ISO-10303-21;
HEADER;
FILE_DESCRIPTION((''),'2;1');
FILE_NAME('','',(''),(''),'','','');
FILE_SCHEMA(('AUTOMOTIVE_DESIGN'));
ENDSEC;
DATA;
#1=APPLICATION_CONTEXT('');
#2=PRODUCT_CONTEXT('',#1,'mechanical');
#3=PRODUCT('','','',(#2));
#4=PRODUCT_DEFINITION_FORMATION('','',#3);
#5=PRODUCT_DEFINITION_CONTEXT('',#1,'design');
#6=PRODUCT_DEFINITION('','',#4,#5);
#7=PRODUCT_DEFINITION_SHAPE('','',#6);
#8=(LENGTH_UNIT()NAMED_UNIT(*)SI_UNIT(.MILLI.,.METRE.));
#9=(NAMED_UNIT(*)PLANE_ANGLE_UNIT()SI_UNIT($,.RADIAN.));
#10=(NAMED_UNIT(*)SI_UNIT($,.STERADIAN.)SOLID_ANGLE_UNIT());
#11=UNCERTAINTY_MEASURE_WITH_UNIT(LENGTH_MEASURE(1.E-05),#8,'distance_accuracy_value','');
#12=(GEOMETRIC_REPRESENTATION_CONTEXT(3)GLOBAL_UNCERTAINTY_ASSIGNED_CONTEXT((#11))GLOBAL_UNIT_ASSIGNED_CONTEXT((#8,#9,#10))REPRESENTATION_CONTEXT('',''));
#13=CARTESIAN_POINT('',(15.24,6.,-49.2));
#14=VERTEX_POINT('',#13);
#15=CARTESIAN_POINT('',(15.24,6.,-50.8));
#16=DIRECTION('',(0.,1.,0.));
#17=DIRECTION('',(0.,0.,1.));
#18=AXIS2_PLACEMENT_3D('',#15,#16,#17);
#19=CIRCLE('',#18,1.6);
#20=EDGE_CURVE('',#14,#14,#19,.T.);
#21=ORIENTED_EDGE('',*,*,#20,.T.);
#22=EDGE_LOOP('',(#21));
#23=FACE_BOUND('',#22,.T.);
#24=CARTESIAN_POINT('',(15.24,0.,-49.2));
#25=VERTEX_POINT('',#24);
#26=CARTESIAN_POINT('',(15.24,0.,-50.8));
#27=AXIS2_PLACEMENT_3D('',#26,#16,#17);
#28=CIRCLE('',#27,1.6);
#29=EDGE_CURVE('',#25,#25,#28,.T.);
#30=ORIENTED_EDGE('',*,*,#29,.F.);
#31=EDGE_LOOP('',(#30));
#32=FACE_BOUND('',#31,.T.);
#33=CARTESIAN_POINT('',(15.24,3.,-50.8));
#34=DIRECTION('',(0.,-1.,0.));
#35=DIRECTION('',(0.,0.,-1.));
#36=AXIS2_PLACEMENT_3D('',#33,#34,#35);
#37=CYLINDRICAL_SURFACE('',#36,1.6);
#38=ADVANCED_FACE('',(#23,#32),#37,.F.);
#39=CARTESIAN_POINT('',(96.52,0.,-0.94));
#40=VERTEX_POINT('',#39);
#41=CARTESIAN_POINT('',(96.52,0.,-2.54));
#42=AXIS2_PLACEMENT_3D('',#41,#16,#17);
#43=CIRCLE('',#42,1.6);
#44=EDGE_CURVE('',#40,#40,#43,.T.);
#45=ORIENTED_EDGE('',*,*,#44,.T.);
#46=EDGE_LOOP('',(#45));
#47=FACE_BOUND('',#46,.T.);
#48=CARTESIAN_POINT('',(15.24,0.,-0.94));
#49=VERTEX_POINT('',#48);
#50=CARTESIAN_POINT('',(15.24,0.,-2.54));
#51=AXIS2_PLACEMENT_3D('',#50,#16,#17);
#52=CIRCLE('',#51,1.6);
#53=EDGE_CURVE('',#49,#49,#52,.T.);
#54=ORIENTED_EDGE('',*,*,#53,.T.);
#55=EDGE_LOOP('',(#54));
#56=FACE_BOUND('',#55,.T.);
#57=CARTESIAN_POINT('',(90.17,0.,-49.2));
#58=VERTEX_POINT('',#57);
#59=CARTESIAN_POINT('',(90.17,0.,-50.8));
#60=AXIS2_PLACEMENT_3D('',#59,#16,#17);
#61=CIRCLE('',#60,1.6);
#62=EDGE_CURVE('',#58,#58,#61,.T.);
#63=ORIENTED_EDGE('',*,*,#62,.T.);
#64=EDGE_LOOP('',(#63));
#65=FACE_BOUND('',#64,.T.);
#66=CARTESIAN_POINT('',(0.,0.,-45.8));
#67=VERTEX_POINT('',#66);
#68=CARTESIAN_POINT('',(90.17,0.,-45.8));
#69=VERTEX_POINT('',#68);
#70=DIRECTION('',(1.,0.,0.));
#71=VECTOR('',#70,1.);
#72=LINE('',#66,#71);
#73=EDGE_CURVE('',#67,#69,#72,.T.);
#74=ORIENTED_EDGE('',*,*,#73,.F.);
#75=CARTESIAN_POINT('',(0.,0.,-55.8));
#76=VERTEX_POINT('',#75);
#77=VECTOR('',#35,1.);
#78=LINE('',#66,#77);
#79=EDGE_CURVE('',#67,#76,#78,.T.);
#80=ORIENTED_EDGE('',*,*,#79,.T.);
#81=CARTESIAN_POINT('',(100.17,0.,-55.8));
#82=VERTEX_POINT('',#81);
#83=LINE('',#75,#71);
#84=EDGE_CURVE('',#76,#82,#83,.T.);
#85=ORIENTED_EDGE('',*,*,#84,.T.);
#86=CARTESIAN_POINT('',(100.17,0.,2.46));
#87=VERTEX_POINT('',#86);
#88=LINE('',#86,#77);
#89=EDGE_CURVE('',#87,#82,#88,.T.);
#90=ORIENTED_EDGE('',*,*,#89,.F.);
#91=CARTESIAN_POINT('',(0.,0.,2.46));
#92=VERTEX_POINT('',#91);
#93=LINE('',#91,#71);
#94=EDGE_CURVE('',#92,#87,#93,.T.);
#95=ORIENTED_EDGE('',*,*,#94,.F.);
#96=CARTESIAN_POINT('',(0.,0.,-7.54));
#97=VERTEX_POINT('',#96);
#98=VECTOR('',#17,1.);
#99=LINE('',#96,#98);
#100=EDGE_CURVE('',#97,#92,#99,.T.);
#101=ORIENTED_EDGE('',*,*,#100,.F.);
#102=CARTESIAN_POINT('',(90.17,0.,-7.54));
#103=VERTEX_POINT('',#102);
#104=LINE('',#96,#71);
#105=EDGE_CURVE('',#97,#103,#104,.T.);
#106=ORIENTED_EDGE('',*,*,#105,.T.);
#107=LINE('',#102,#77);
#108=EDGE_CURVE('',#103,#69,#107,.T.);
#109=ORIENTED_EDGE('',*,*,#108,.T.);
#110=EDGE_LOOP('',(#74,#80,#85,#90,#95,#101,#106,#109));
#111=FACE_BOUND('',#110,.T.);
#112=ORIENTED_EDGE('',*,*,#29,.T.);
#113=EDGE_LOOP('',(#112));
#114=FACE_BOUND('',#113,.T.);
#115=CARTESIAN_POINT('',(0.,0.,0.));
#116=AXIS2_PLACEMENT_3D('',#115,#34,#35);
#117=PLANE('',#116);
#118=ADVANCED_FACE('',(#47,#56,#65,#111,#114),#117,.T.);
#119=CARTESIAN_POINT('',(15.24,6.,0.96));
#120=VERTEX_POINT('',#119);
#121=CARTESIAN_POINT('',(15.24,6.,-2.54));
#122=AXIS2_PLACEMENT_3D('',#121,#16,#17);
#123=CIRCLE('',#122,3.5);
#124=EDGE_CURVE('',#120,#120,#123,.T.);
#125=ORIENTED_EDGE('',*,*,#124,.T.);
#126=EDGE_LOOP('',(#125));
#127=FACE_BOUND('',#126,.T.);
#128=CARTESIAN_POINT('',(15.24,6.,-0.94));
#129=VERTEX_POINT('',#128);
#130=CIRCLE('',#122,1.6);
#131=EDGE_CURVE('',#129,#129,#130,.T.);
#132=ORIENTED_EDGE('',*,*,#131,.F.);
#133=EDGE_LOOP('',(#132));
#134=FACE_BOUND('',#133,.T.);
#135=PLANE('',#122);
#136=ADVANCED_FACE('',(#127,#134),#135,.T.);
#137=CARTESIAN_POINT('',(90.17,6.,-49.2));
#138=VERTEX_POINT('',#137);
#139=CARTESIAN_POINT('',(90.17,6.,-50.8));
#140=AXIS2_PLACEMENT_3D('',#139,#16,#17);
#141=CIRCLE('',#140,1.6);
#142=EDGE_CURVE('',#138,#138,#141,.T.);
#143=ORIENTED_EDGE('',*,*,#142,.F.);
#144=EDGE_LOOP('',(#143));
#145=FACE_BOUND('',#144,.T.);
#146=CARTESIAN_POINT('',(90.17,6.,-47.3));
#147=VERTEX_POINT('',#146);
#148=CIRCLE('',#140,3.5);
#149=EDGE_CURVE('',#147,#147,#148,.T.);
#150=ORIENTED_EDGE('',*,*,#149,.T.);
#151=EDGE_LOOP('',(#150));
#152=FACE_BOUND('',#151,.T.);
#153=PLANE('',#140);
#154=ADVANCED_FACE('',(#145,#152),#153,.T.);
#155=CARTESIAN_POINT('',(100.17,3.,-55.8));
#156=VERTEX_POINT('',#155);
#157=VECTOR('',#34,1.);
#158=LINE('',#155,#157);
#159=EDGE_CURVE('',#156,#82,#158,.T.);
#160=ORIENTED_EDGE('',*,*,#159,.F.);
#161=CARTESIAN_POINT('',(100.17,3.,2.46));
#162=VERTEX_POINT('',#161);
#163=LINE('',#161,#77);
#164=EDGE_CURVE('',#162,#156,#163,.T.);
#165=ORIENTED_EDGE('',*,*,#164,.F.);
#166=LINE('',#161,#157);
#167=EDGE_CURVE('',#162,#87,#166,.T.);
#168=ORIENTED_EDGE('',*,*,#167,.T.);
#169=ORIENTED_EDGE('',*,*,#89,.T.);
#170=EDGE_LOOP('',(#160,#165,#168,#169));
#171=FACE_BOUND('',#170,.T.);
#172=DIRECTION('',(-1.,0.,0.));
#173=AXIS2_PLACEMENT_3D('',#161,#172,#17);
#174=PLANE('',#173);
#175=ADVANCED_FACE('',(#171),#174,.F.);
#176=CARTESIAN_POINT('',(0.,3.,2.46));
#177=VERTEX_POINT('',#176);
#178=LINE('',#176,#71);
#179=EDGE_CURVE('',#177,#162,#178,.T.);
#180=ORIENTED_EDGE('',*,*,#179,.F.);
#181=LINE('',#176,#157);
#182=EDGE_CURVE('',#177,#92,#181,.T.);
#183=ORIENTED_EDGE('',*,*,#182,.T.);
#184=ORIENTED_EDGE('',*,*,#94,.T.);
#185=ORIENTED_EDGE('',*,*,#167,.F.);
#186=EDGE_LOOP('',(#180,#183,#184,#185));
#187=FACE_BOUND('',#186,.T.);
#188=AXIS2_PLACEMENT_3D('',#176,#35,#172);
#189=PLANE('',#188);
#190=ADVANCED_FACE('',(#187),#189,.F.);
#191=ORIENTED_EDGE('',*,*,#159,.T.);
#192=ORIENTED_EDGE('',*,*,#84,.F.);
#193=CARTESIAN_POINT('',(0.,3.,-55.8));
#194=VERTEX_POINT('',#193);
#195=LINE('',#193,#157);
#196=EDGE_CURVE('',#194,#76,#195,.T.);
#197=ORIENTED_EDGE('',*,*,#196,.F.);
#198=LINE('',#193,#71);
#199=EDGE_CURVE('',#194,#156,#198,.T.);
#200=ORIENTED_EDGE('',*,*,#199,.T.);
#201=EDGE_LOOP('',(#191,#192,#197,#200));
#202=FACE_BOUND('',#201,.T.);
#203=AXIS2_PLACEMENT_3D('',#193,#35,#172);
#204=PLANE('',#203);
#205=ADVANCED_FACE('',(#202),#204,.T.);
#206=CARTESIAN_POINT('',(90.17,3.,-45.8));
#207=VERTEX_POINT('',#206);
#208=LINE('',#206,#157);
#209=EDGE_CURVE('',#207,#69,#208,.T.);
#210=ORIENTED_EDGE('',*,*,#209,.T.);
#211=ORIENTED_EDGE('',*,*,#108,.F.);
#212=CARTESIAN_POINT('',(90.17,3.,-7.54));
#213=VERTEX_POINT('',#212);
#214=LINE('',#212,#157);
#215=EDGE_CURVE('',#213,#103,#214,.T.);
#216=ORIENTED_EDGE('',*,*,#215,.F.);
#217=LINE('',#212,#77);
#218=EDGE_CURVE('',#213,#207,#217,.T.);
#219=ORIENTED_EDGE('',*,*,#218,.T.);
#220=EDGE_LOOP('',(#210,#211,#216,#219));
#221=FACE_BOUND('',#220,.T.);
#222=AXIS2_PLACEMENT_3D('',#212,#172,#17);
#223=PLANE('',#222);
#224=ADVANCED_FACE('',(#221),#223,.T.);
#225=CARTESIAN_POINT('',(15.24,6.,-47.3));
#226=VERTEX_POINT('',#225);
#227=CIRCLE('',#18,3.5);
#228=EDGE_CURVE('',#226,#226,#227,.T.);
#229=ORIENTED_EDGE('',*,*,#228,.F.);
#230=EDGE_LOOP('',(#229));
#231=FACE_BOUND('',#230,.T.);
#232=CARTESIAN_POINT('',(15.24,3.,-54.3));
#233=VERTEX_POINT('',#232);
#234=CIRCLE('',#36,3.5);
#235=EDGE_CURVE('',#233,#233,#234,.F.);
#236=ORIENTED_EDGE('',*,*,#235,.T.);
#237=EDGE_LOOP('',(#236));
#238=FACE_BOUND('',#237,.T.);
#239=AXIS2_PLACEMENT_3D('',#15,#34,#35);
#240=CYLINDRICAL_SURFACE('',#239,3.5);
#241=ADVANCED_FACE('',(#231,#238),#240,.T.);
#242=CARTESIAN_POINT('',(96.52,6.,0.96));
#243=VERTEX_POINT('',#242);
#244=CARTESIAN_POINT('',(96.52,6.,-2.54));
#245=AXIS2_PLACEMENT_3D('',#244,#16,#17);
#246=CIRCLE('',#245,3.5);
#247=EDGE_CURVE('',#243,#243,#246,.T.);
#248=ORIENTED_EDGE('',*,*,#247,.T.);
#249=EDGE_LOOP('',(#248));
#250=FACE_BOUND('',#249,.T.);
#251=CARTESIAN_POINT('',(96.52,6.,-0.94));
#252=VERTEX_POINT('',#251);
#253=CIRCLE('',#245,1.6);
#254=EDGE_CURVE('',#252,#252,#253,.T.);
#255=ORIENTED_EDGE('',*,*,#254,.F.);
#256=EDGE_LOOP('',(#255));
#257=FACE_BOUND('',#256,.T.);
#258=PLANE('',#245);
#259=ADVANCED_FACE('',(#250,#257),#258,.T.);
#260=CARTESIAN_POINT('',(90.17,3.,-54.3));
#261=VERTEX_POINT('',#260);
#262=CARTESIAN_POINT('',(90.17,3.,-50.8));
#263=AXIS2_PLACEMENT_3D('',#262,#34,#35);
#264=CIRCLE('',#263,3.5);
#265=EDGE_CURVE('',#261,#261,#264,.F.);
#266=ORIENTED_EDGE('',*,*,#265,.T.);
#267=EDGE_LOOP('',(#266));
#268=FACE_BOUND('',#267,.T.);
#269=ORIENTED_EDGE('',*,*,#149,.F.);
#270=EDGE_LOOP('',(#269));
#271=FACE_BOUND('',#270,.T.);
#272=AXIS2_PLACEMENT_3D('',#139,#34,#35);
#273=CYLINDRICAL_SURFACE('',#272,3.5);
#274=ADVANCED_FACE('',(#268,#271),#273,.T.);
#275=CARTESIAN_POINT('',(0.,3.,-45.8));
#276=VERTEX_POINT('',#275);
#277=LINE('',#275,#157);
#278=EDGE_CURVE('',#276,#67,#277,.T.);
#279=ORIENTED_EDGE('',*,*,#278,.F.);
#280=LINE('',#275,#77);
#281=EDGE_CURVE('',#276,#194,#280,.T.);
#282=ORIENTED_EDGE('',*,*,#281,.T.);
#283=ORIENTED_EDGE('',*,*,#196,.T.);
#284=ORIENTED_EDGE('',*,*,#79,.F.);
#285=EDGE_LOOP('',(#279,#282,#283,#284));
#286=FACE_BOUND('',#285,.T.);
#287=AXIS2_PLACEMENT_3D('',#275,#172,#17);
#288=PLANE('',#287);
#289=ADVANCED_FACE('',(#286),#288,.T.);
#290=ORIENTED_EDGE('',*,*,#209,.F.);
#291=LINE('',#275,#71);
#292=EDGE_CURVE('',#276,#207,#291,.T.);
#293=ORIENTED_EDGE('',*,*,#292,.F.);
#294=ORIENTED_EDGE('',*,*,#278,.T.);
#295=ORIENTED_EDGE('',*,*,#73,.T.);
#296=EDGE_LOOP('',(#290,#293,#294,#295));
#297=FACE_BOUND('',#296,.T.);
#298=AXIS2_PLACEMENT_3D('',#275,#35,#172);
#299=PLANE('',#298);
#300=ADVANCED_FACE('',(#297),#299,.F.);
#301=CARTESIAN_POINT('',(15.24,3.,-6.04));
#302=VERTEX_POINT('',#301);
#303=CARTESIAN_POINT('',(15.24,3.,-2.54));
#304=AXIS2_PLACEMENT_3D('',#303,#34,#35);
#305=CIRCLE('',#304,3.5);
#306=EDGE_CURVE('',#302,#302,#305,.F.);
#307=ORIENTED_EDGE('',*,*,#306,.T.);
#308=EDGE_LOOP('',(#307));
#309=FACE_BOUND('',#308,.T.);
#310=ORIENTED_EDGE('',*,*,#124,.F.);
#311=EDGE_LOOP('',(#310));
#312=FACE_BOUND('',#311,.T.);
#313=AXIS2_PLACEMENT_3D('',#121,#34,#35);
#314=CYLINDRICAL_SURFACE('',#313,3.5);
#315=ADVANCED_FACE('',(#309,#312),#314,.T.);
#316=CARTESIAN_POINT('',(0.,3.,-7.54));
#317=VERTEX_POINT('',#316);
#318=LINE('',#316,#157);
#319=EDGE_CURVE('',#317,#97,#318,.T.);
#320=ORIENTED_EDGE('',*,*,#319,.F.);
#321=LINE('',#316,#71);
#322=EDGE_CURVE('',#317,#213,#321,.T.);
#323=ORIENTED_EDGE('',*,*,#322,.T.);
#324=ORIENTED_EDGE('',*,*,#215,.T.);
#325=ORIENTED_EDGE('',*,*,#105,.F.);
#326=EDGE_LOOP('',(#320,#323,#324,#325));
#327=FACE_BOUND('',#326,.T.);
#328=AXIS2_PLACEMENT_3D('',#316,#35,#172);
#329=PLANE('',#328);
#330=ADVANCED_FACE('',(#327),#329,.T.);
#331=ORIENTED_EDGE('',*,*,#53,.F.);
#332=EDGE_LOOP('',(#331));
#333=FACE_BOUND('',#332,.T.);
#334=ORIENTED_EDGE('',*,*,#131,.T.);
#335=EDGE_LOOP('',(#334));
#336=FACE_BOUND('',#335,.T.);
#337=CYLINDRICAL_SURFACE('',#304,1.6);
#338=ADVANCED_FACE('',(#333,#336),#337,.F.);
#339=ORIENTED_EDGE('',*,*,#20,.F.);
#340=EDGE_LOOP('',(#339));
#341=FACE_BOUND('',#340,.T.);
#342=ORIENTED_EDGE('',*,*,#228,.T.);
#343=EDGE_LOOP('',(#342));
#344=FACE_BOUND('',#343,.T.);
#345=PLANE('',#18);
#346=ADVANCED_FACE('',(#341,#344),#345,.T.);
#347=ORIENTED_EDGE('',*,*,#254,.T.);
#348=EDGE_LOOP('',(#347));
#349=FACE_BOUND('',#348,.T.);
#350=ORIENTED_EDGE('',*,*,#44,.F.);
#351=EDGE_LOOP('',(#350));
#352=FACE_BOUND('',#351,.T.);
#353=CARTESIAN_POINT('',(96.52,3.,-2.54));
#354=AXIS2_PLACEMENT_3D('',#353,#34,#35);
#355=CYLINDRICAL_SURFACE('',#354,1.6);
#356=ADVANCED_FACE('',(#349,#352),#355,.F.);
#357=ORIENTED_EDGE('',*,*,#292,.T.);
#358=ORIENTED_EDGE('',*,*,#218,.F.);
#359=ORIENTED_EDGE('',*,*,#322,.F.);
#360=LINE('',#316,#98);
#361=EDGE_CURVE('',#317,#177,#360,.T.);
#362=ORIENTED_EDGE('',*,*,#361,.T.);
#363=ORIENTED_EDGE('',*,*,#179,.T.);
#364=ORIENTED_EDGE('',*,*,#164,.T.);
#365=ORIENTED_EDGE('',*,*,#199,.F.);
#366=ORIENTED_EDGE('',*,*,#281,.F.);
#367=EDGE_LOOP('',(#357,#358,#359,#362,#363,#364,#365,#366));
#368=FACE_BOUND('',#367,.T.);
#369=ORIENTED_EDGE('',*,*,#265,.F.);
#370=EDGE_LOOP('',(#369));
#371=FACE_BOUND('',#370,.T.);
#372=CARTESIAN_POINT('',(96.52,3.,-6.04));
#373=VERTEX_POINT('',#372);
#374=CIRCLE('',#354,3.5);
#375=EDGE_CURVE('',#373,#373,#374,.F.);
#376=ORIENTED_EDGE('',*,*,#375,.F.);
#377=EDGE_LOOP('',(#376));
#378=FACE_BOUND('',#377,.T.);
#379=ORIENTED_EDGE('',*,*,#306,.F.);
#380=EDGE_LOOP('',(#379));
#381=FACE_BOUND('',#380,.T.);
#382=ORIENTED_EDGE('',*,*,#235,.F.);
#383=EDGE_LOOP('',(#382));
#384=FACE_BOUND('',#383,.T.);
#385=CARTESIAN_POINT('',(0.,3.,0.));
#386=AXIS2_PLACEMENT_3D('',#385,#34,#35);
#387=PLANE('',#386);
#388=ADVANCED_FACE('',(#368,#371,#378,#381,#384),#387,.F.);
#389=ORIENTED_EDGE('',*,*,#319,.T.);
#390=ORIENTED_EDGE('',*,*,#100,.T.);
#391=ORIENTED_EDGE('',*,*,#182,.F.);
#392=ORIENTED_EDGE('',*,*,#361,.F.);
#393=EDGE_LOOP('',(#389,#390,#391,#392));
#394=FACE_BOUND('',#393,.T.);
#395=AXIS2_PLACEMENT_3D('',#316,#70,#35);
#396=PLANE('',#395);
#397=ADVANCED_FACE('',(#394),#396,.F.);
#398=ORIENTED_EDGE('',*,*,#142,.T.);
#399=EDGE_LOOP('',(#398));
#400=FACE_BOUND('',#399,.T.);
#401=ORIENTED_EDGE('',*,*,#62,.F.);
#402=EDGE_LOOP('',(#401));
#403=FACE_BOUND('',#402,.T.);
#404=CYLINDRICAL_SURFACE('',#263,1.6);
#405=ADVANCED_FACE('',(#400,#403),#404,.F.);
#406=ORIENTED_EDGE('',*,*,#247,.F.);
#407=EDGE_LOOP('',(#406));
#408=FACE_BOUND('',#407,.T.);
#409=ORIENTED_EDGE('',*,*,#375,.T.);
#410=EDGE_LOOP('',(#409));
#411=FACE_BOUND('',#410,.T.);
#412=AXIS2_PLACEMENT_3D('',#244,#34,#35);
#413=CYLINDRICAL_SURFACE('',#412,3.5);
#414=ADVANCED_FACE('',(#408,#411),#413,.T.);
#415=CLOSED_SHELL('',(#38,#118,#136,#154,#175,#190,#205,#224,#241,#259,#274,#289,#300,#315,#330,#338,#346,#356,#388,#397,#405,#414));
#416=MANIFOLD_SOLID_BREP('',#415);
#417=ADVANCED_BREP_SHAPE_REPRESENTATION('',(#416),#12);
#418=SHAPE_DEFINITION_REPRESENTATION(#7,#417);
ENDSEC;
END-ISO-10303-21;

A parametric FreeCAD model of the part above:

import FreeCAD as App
import Part
import Sketcher
from FreeCAD import Vector
Q = App.Units.Quantity

doc = App.newDocument("Part")
params = doc.addObject("Spreadsheet::Sheet", "Params")
for row, (alias, value) in enumerate([
    ("sketch1_diameter", "3.2 mm"),
    ("sketch1_height", "10 mm"),
    ("sketch1_width", "90.17 mm"),
    ("sketch1_height2", "58.26 mm"),
    ("pad1_length", "3 mm"),
    ("sketch2_diameter", "7 mm"),
    ("sketch2_diameter2", "3.2 mm"),
    ("pad2_length", "3 mm"),
], start=1):
    params.set(f"A{row}", alias)
    params.set(f"B{row}", "=" + value)
    params.setAlias(f"B{row}", alias)

body = doc.addObject("PartDesign::Body", "Body")

sketch1 = body.newObject("Sketcher::SketchObject", "Sketch")
sketch1.AttachmentSupport = (doc.getObject("XZ_Plane"), [""])
sketch1.MapMode = "FlatFace"
sketch1.addGeometry([
    Part.LineSegment(Vector(90.2, -7.5, 0), Vector(0, -7.5, 0)),
    Part.LineSegment(Vector(0, -7.5, 0), Vector(0, 2.5, 0)),
    Part.LineSegment(Vector(0, 2.5, 0), Vector(100.2, 2.5, 0)),
    Part.LineSegment(Vector(100.2, 2.5, 0), Vector(100.2, -55.8, 0)),
    Part.LineSegment(Vector(100.2, -55.8, 0), Vector(0, -55.8, 0)),
    Part.LineSegment(Vector(0, -55.8, 0), Vector(0, -45.8, 0)),
    Part.LineSegment(Vector(0, -45.8, 0), Vector(90.2, -45.8, 0)),
    Part.LineSegment(Vector(90.2, -45.8, 0), Vector(90.2, -7.5, 0)),
    Part.Circle(Vector(96.5, -2.5, 0), Vector(0, 0, 1), 1.6),
    Part.Circle(Vector(15.2, -2.5, 0), Vector(0, 0, 1), 1.6),
    Part.Circle(Vector(90.2, -50.8, 0), Vector(0, 0, 1), 1.6),
    Part.Circle(Vector(15.2, -50.8, 0), Vector(0, 0, 1), 1.6),
], False)
sketch1.addConstraint([
    Sketcher.Constraint("Coincident", 0, 2, 1, 1),
    Sketcher.Constraint("Coincident", 1, 2, 2, 1),
    Sketcher.Constraint("Coincident", 2, 2, 3, 1),
    Sketcher.Constraint("Coincident", 3, 2, 4, 1),
    Sketcher.Constraint("Coincident", 4, 2, 5, 1),
    Sketcher.Constraint("Coincident", 5, 2, 6, 1),
    Sketcher.Constraint("Coincident", 6, 2, 7, 1),
    Sketcher.Constraint("Coincident", 7, 2, 0, 1),
    Sketcher.Constraint("Horizontal", 0),
    Sketcher.Constraint("Vertical", 1),
    Sketcher.Constraint("Horizontal", 2),
    Sketcher.Constraint("Vertical", 3),
    Sketcher.Constraint("Horizontal", 4),
    Sketcher.Constraint("Vertical", 5),
    Sketcher.Constraint("Horizontal", 6),
    Sketcher.Constraint("Vertical", 7),
    Sketcher.Constraint("Equal", 8, 9),
    Sketcher.Constraint("Equal", 9, 10),
    Sketcher.Constraint("Equal", 10, 11),
    Sketcher.Constraint("PointOnObject", 0, 2, -2),
    Sketcher.Constraint("PointOnObject", 4, 2, -2),
    Sketcher.Constraint("Horizontal", 8, 3, 9, 3),
    Sketcher.Constraint("Horizontal", 10, 3, 11, 3),
    Sketcher.Constraint("Vertical", 9, 3, 11, 3),
    Sketcher.Constraint("Vertical", 10, 3, 6, 2),
    Sketcher.Constraint("Equal", 1, 5),
    Sketcher.Constraint("Diameter", 8, Q("3.2 mm")),
    Sketcher.Constraint("DistanceY", 1, 1, 1, 2, Q("10 mm")),
    Sketcher.Constraint("DistanceY", 0, 2, 9, 3, Q("5 mm")),
    Sketcher.Constraint("DistanceX", 10, 3, 2, 2, Q("10 mm")),
    Sketcher.Constraint("DistanceY", 3, 2, 10, 3, Q("5 mm")),
    Sketcher.Constraint("DistanceX", 0, 2, 0, 1, Q("90.17 mm")),
    Sketcher.Constraint("DistanceY", 3, 2, 3, 1, Q("58.26 mm")),
    Sketcher.Constraint("DistanceY", 10, 3, -1, 1, Q("50.8 mm")),
    Sketcher.Constraint("DistanceX", -1, 1, 8, 3, Q("96.52 mm")),
    Sketcher.Constraint("DistanceX", -1, 1, 9, 3, Q("15.24 mm")),
])
sketch1.setExpression("Constraints[26]", "Params.sketch1_diameter")
sketch1.setExpression("Constraints[27]", "Params.sketch1_height")
sketch1.setExpression("Constraints[31]", "Params.sketch1_width")
sketch1.setExpression("Constraints[32]", "Params.sketch1_height2")
pad1 = body.newObject("PartDesign::Pad", "Pad")
pad1.Profile = sketch1
pad1.setExpression("Length", "Params.pad1_length")
pad1.Reversed = True

sketch2 = body.newObject("Sketcher::SketchObject", "Sketch001")
sketch2.AttachmentSupport = (doc.getObject("XZ_Plane"), [""])
sketch2.MapMode = "FlatFace"
sketch2.AttachmentOffset = App.Placement(Vector(0, 0, -3), App.Rotation())
sketch2.addGeometry([
    Part.Circle(Vector(15.2, -50.8, 0), Vector(0, 0, 1), 3.5),
    Part.Circle(Vector(15.2, -50.8, 0), Vector(0, 0, 1), 1.6),
    Part.Circle(Vector(90.2, -50.8, 0), Vector(0, 0, 1), 3.5),
    Part.Circle(Vector(90.2, -50.8, 0), Vector(0, 0, 1), 1.6),
    Part.Circle(Vector(96.5, -2.5, 0), Vector(0, 0, 1), 3.5),
    Part.Circle(Vector(96.5, -2.5, 0), Vector(0, 0, 1), 1.6),
    Part.Circle(Vector(15.2, -2.5, 0), Vector(0, 0, 1), 3.5),
    Part.Circle(Vector(15.2, -2.5, 0), Vector(0, 0, 1), 1.6),
], False)
sketch2.addConstraint([
    Sketcher.Constraint("Coincident", 1, 3, 0, 3),
    Sketcher.Constraint("Coincident", 3, 3, 2, 3),
    Sketcher.Constraint("Coincident", 5, 3, 4, 3),
    Sketcher.Constraint("Coincident", 7, 3, 6, 3),
    Sketcher.Constraint("Equal", 0, 2),
    Sketcher.Constraint("Equal", 1, 3),
    Sketcher.Constraint("Equal", 2, 4),
    Sketcher.Constraint("Equal", 3, 5),
    Sketcher.Constraint("Equal", 4, 6),
    Sketcher.Constraint("Equal", 5, 7),
    Sketcher.Constraint("Horizontal", 1, 3, 2, 3),
    Sketcher.Constraint("Horizontal", 5, 3, 6, 3),
    Sketcher.Constraint("Vertical", 1, 3, 6, 3),
    Sketcher.Constraint("Diameter", 0, Q("7 mm")),
    Sketcher.Constraint("Diameter", 1, Q("3.2 mm")),
    Sketcher.Constraint("DistanceY", 0, 3, -1, 1, Q("50.8 mm")),
    Sketcher.Constraint("DistanceX", -1, 1, 0, 3, Q("15.24 mm")),
    Sketcher.Constraint("DistanceX", -1, 1, 2, 3, Q("90.17 mm")),
    Sketcher.Constraint("DistanceX", -1, 1, 4, 3, Q("96.52 mm")),
    Sketcher.Constraint("DistanceY", 4, 3, -1, 1, Q("2.54 mm")),
])
sketch2.setExpression("Constraints[13]", "Params.sketch2_diameter")
sketch2.setExpression("Constraints[14]", "Params.sketch2_diameter2")
pad2 = body.newObject("PartDesign::Pad", "Pad001")
pad2.Profile = sketch2
pad2.setExpression("Length", "Params.pad2_length")
pad2.Reversed = True

doc.recompute()
